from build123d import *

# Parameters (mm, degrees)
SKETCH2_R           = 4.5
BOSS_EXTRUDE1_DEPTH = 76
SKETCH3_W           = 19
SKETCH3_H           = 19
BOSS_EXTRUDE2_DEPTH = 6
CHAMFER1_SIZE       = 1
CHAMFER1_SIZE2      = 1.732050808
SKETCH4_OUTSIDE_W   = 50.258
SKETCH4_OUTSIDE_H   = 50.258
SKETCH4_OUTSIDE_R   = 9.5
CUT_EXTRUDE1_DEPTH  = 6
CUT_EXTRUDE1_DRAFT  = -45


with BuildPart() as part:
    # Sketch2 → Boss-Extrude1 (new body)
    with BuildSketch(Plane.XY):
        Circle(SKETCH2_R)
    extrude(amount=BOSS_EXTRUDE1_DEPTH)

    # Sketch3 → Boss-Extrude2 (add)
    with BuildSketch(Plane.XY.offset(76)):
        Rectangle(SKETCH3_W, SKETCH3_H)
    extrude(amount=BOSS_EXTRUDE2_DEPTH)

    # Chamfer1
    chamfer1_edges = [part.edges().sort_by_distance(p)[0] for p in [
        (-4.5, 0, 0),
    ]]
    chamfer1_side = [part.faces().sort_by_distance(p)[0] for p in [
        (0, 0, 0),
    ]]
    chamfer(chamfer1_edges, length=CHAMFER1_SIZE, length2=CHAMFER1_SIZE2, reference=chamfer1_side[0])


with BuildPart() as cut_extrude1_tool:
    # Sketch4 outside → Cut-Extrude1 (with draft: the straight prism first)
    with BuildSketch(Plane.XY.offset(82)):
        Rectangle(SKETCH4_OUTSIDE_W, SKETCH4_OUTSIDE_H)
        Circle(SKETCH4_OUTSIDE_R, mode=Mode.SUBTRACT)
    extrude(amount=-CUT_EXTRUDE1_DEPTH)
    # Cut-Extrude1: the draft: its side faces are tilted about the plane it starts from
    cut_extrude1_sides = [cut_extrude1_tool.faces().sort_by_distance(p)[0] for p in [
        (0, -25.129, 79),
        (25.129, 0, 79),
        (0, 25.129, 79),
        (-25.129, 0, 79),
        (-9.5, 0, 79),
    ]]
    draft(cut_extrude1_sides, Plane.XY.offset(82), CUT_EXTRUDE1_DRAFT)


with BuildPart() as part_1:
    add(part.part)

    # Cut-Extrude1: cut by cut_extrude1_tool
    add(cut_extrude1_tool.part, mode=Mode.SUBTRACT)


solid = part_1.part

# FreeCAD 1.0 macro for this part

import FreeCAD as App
import Part
import Sketcher

V = App.Vector


def edges_at(feature, points):
    """Names of the edges that pass closest to the given points."""
    edges = feature.Shape.Edges
    near = lambda p: min(range(len(edges)), key=lambda i: edges[i].distToShape(Part.Vertex(*p))[0])
    return sorted({f"Edge{near(p) + 1}" for p in points})


def faces_at(feature, points):
    """Names of the faces that lie closest to the given points."""
    faces = feature.Shape.Faces
    near = lambda p: min(range(len(faces)), key=lambda i: faces[i].distToShape(Part.Vertex(*p))[0])
    return sorted({f"Face{near(p) + 1}" for p in points})


def add_polygon(sketch, points):
    """Adds a closed chain of lines whose ends are joined by coincident constraints."""
    first, n = sketch.GeometryCount, len(points)
    for a, b in zip(points, points[1:] + points[:1]):
        sketch.addGeometry(Part.LineSegment(App.Vector(*a, 0), App.Vector(*b, 0)), False)
    for i in range(n):
        sketch.addConstraint(Sketcher.Constraint("Coincident", first + i, 2, first + (i + 1) % n, 1))

doc = App.newDocument("Part")
body = doc.addObject("PartDesign::Body", "Body")

sketch1 = body.newObject("Sketcher::SketchObject", "Sketch")
sketch1.AttachmentSupport = (doc.getObject("XY_Plane"), [""])
sketch1.MapMode = "FlatFace"
sketch1.addGeometry(Part.Circle(V(0, 0, 0), V(0, 0, 1), 4.5), False)
sketch1.addConstraint(Sketcher.Constraint("Coincident", 0, 3, -1, 1))
sketch1.addConstraint(Sketcher.Constraint("Diameter", 0, 9.0))
pad1 = body.newObject("PartDesign::Pad", "Pad")
pad1.Profile = sketch1
pad1.Length = 76

sketch2 = body.newObject("Sketcher::SketchObject", "Sketch001")
sketch2.AttachmentSupport = (doc.getObject("XY_Plane"), [""])
sketch2.MapMode = "FlatFace"
sketch2.AttachmentOffset = App.Placement(V(0, 0, 76), App.Rotation())
add_polygon(sketch2, [(-10, 10), (-10, -10), (10, -10), (10, 10)])
sketch2.addConstraint(Sketcher.Constraint("Vertical", 0))
sketch2.addConstraint(Sketcher.Constraint("Horizontal", 1))
sketch2.addConstraint(Sketcher.Constraint("Vertical", 2))
sketch2.addConstraint(Sketcher.Constraint("Horizontal", 3))
sketch2.addConstraint(Sketcher.Constraint("Symmetric", 0, 2, 2, 2, -1, 1))
sketch2.addConstraint(Sketcher.Constraint("Equal", 3, 0))
sketch2.addConstraint(Sketcher.Constraint("DistanceX", 1, 1, 1, 2, 19.0))
pad2 = body.newObject("PartDesign::Pad", "Pad001")
pad2.Profile = sketch2
pad2.Length = 6
doc.recompute()

chamfer = body.newObject("PartDesign::Chamfer", "Chamfer")
chamfer.Base = (pad2, edges_at(pad2, [(-4.5, 0, 0)]))
chamfer.ChamferType = "Two distances"
chamfer.Size = 1
chamfer.Size2 = 1.732051
chamfer.FlipDirection = True
body2 = doc.addObject("PartDesign::Body", "Body001")

sketch3 = body2.newObject("Sketcher::SketchObject", "Sketch002")
sketch3.AttachmentSupport = (doc.getObject("XY_Plane001"), [""])
sketch3.MapMode = "FlatFace"
sketch3.AttachmentOffset = App.Placement(V(0, 0, 82), App.Rotation())
add_polygon(sketch3, [(-25, 25), (-25, -25), (25, -25), (25, 25)])
sketch3.addGeometry(Part.Circle(V(0, 0, 0), V(0, 0, 1), 10), False)
sketch3.addConstraint(Sketcher.Constraint("Vertical", 0))
sketch3.addConstraint(Sketcher.Constraint("Horizontal", 1))
sketch3.addConstraint(Sketcher.Constraint("Vertical", 2))
sketch3.addConstraint(Sketcher.Constraint("Horizontal", 3))
sketch3.addConstraint(Sketcher.Constraint("Coincident", 4, 3, -1, 1))
sketch3.addConstraint(Sketcher.Constraint("Symmetric", 0, 2, 2, 2, -1, 1))
sketch3.addConstraint(Sketcher.Constraint("Equal", 3, 0))
sketch3.addConstraint(Sketcher.Constraint("Diameter", 4, 19.0))
sketch3.addConstraint(Sketcher.Constraint("DistanceX", 1, 1, 1, 2, 50.258))
pad3 = body2.newObject("PartDesign::Pad", "Pad002")
pad3.Profile = sketch3
pad3.Length = 6
pad3.Reversed = True
doc.recompute()

datumplane = body2.newObject("PartDesign::Plane", "DatumPlane")
datumplane.AttachmentSupport = (doc.getObject("XY_Plane001"), [""])
datumplane.MapMode = "FlatFace"
datumplane.AttachmentOffset = App.Placement(V(0, 0, 82), App.Rotation())
draft = body2.newObject("PartDesign::Draft", "Draft")
draft.Base = (pad3, faces_at(pad3, [
    (0, -25.129, 79),
    (25.129, 0, 79),
    (0, 25.129, 79),
    (-25.129, 0, 79),
    (-9.5, 0, 79),
]))
draft.NeutralPlane = (datumplane, [""])
draft.Angle = 45
draft.Reversed = True
doc.recompute()

boolean = body.newObject("PartDesign::Boolean", "Boolean")
boolean.Type = "Cut"
boolean.addObjects([body2])

doc.recompute()
